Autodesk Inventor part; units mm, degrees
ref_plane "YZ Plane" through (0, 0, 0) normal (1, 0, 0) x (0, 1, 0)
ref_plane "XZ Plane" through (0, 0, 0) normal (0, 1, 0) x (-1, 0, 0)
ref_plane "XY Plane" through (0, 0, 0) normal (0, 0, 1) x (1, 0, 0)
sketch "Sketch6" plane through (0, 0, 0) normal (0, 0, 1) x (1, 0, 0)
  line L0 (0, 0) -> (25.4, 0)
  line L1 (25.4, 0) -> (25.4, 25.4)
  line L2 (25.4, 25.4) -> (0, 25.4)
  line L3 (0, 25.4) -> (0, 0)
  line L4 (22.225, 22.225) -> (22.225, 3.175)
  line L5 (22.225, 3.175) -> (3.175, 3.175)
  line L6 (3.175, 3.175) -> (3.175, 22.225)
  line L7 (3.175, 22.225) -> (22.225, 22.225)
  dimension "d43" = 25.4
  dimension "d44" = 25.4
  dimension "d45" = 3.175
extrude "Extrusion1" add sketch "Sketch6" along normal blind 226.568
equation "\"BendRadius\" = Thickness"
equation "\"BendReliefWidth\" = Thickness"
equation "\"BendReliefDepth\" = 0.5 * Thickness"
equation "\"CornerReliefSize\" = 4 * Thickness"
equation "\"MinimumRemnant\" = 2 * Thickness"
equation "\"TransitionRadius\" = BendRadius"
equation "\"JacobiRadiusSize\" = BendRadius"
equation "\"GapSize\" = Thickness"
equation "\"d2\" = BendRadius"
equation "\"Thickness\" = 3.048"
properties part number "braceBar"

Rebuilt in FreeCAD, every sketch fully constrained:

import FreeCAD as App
import Part
import Sketcher

V = App.Vector
Q = App.Units.Quantity

doc = App.newDocument("Part")
body = doc.addObject("PartDesign::Body", "Body")

sketch1 = body.newObject("Sketcher::SketchObject", "Sketch")
sketch1.AttachmentSupport = (doc.getObject("XY_Plane"), [""])
sketch1.MapMode = "FlatFace"
sketch1.addGeometry(Part.LineSegment(V(0, 25.4, 0), V(0, 0, 0)), False)
sketch1.addGeometry(Part.LineSegment(V(0, 0, 0), V(25.4, 0, 0)), False)
sketch1.addGeometry(Part.LineSegment(V(25.4, 0, 0), V(25.4, 25.4, 0)), False)
sketch1.addGeometry(Part.LineSegment(V(25.4, 25.4, 0), V(0, 25.4, 0)), False)
sketch1.addGeometry(Part.LineSegment(V(3.175, 22.225, 0), V(22.225, 22.225, 0)), False)
sketch1.addGeometry(Part.LineSegment(V(22.225, 22.225, 0), V(22.225, 3.175, 0)), False)
sketch1.addGeometry(Part.LineSegment(V(22.225, 3.175, 0), V(3.175, 3.175, 0)), False)
sketch1.addGeometry(Part.LineSegment(V(3.175, 3.175, 0), V(3.175, 22.225, 0)), False)
sketch1.addConstraint(Sketcher.Constraint("Coincident", 0, 2, 1, 1))
sketch1.addConstraint(Sketcher.Constraint("Coincident", 1, 2, 2, 1))
sketch1.addConstraint(Sketcher.Constraint("Coincident", 2, 2, 3, 1))
sketch1.addConstraint(Sketcher.Constraint("Coincident", 3, 2, 0, 1))
sketch1.addConstraint(Sketcher.Constraint("Coincident", 4, 2, 5, 1))
sketch1.addConstraint(Sketcher.Constraint("Coincident", 5, 2, 6, 1))
sketch1.addConstraint(Sketcher.Constraint("Coincident", 6, 2, 7, 1))
sketch1.addConstraint(Sketcher.Constraint("Coincident", 7, 2, 4, 1))
sketch1.addConstraint(Sketcher.Constraint("Vertical", 0))
sketch1.addConstraint(Sketcher.Constraint("Horizontal", 1))
sketch1.addConstraint(Sketcher.Constraint("Vertical", 2))
sketch1.addConstraint(Sketcher.Constraint("Horizontal", 3))
sketch1.addConstraint(Sketcher.Constraint("Horizontal", 4))
sketch1.addConstraint(Sketcher.Constraint("Vertical", 5))
sketch1.addConstraint(Sketcher.Constraint("Horizontal", 6))
sketch1.addConstraint(Sketcher.Constraint("Vertical", 7))
sketch1.addConstraint(Sketcher.Constraint("Coincident", 0, 2, -1, 1))
sketch1.addConstraint(Sketcher.Constraint("Equal", 3, 0))
sketch1.addConstraint(Sketcher.Constraint("Equal", 6, 5))
sketch1.addConstraint(Sketcher.Constraint("DistanceX", 1, 1, 1, 2, Q("1 in")))
sketch1.addConstraint(Sketcher.Constraint("DistanceY", -1, 1, 5, 2, Q("0.125 in")))
sketch1.addConstraint(Sketcher.Constraint("DistanceX", -1, 1, 6, 2, Q("0.125 in")))
sketch1.addConstraint(Sketcher.Constraint("DistanceX", 4, 2, 2, 2, Q("0.125 in")))
pad1 = body.newObject("PartDesign::Pad", "Pad")
pad1.Profile = sketch1
pad1.Length = Q("8.92 in")

doc.recompute()
